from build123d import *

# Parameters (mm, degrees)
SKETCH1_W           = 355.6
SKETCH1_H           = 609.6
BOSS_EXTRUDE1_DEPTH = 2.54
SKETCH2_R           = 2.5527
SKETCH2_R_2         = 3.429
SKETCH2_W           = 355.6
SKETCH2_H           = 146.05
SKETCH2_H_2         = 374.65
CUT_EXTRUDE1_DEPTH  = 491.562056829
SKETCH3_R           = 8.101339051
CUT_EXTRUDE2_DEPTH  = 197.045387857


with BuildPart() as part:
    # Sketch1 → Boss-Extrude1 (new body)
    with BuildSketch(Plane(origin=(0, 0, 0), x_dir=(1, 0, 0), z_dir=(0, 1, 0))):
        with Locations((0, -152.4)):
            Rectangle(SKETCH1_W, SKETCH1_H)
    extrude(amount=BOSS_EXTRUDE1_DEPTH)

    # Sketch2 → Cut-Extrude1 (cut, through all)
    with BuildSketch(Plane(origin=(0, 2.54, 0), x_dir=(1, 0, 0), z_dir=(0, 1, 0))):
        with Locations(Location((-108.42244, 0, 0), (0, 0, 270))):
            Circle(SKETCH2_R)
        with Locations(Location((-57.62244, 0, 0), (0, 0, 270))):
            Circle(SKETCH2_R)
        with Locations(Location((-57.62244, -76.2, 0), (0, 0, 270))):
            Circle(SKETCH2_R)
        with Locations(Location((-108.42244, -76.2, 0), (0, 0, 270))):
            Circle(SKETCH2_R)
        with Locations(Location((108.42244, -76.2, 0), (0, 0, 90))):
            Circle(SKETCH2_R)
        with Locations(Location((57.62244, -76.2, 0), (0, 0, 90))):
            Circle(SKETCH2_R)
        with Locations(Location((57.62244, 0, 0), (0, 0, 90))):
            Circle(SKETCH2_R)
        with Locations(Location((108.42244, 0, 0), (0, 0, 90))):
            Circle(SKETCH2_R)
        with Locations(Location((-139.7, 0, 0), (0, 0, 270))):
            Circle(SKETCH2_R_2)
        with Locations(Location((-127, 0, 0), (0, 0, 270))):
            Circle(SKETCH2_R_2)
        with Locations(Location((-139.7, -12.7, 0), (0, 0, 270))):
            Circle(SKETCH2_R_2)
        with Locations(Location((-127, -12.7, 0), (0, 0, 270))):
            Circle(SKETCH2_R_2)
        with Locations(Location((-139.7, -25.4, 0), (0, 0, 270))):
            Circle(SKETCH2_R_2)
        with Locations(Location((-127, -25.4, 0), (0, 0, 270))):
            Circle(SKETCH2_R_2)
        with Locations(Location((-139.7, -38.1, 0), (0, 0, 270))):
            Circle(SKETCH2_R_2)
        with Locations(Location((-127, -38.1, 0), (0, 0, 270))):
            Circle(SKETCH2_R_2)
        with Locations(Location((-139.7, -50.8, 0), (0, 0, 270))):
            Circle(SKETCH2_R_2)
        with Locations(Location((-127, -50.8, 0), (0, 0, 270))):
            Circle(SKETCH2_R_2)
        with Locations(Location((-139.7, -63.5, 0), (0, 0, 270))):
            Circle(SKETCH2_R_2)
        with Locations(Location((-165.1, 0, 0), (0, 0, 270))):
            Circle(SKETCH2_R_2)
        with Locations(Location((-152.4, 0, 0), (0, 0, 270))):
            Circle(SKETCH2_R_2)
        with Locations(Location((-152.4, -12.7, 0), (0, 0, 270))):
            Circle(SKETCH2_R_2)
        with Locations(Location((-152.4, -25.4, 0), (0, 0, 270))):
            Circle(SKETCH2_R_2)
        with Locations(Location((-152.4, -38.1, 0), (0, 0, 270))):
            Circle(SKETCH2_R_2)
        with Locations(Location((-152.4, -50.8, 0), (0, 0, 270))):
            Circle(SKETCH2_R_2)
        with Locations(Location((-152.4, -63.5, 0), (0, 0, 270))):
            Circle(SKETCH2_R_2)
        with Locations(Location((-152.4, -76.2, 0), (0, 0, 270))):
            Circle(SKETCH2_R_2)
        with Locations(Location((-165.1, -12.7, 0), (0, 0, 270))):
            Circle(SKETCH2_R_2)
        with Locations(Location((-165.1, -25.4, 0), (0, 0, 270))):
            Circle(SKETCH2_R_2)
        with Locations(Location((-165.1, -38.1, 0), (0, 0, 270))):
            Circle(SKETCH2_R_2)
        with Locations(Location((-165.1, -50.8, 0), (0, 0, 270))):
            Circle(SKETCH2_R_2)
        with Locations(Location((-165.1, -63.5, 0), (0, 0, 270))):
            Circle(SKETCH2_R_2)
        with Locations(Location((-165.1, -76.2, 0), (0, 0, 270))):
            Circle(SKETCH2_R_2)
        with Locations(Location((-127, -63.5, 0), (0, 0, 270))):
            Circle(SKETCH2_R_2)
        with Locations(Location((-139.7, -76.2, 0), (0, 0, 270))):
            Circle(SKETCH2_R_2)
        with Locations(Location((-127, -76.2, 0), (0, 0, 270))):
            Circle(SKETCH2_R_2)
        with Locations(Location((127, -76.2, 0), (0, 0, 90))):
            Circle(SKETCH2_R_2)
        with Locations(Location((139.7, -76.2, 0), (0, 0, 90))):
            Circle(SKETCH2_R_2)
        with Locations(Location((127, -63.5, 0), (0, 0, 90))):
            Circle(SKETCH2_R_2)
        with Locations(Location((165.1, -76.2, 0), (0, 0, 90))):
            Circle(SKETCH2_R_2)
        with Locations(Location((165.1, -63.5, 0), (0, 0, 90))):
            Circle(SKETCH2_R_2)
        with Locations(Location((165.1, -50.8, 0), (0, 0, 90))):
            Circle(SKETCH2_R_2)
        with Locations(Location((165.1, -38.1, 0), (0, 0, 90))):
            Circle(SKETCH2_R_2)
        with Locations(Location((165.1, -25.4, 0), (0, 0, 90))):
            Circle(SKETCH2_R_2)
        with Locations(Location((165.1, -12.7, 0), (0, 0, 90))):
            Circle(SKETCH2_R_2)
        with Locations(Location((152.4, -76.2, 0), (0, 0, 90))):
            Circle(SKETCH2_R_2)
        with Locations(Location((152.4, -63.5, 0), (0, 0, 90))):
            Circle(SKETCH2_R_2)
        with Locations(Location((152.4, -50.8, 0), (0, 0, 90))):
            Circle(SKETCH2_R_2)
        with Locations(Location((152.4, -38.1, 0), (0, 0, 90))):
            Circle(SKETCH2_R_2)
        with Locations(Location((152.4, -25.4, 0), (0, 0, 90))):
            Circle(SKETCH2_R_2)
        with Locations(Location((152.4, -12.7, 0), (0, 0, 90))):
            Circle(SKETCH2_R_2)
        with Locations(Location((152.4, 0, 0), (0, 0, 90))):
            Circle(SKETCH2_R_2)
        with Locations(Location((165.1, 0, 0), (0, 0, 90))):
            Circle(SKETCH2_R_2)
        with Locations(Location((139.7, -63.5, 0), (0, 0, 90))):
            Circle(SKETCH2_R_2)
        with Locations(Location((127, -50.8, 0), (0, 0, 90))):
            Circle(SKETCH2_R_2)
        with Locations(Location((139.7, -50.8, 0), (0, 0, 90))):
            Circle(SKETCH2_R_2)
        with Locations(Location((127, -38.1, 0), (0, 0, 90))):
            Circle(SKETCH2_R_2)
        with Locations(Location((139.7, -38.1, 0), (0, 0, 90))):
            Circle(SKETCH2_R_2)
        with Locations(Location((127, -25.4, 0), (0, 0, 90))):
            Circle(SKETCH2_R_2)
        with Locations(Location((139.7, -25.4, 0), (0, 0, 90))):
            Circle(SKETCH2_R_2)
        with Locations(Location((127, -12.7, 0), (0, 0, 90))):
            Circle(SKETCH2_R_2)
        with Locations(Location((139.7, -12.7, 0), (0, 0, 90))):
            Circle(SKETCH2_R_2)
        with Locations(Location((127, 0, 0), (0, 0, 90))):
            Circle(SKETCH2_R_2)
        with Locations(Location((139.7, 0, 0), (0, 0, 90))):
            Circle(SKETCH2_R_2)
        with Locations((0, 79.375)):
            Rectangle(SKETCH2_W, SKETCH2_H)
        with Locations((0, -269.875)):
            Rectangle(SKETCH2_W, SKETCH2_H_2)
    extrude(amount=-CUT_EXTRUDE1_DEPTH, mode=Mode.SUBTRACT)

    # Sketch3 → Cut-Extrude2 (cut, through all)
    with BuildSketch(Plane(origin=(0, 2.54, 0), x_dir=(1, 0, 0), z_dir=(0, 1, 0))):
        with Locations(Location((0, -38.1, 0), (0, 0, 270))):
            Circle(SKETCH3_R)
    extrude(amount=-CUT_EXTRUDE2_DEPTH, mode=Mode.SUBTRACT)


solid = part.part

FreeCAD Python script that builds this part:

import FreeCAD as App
import Part
import Sketcher

V = App.Vector
Q = App.Units.Quantity

doc = App.newDocument("Part")
body = doc.addObject("PartDesign::Body", "Body")

sketch1 = body.newObject("Sketcher::SketchObject", "Sketch")
sketch1.AttachmentSupport = (doc.getObject("XZ_Plane"), [""])
sketch1.MapMode = "FlatFace"
sketch1.addGeometry([
    Part.LineSegment(V(-178, -152, 0), V(-178, 457, 0)),
    Part.LineSegment(V(-178, 457, 0), V(178, 457, 0)),
    Part.LineSegment(V(178, 457, 0), V(178, -152, 0)),
    Part.LineSegment(V(178, -152, 0), V(-178, -152, 0)),
], False)
sketch1.addConstraint([
    Sketcher.Constraint("Coincident", 0, 2, 1, 1),
    Sketcher.Constraint("Coincident", 1, 2, 2, 1),
    Sketcher.Constraint("Coincident", 2, 2, 3, 1),
    Sketcher.Constraint("Coincident", 3, 2, 0, 1),
    Sketcher.Constraint("Vertical", 0),
    Sketcher.Constraint("Horizontal", 1),
    Sketcher.Constraint("Vertical", 2),
    Sketcher.Constraint("Horizontal", 3),
    Sketcher.Constraint("DistanceX", 1, 1, 1, 2, Q("14 in")),
    Sketcher.Constraint("DistanceY", 0, 1, 0, 2, Q("24 in")),
    Sketcher.Constraint("DistanceX", 0, 2, -1, 1, Q("7 in")),
    Sketcher.Constraint("DistanceY", -1, 1, 0, 2, Q("18 in")),
])
pad1 = body.newObject("PartDesign::Pad", "Pad")
pad1.Profile = sketch1
pad1.Length = Q("0.1 in")
pad1.Reversed = True

sketch2 = body.newObject("Sketcher::SketchObject", "Sketch001")
sketch2.AttachmentSupport = (doc.getObject("XZ_Plane"), [""])
sketch2.MapMode = "FlatFace"
sketch2.AttachmentOffset = App.Placement(V(0, 0, -0.1 * 25.4), App.Rotation())
sketch2.addGeometry([
    Part.Circle(V(-108.4, 0, 0), V(0, 0, 1), 2.6),
    Part.Circle(V(-57.6, 0, 0), V(0, 0, 1), 2.6),
    Part.Circle(V(-57.6, 76.2, 0), V(0, 0, 1), 2.6),
    Part.Circle(V(-108.4, 76.2, 0), V(0, 0, 1), 2.6),
    Part.Circle(V(108.4, 76.2, 0), V(0, 0, 1), 2.6),
    Part.Circle(V(57.6, 76.2, 0), V(0, 0, 1), 2.6),
    Part.Circle(V(57.6, 0, 0), V(0, 0, 1), 2.6),
    Part.Circle(V(108.4, 0, 0), V(0, 0, 1), 2.6),
    Part.Circle(V(-139.7, 0, 0), V(0, 0, 1), 3.4),
    Part.Circle(V(-127, 0, 0), V(0, 0, 1), 3.4),
    Part.Circle(V(-139.7, 12.7, 0), V(0, 0, 1), 3.4),
    Part.Circle(V(-127, 12.7, 0), V(0, 0, 1), 3.4),
    Part.Circle(V(-139.7, 25.4, 0), V(0, 0, 1), 3.4),
    Part.Circle(V(-127, 25.4, 0), V(0, 0, 1), 3.4),
    Part.Circle(V(-139.7, 38.1, 0), V(0, 0, 1), 3.4),
    Part.Circle(V(-127, 38.1, 0), V(0, 0, 1), 3.4),
    Part.Circle(V(-139.7, 50.8, 0), V(0, 0, 1), 3.4),
    Part.Circle(V(-127, 50.8, 0), V(0, 0, 1), 3.4),
    Part.Circle(V(-139.7, 63.5, 0), V(0, 0, 1), 3.4),
    Part.Circle(V(-165.1, 0, 0), V(0, 0, 1), 3.4),
    Part.Circle(V(-152.4, 0, 0), V(0, 0, 1), 3.4),
    Part.Circle(V(-152.4, 12.7, 0), V(0, 0, 1), 3.4),
    Part.Circle(V(-152.4, 25.4, 0), V(0, 0, 1), 3.4),
    Part.Circle(V(-152.4, 38.1, 0), V(0, 0, 1), 3.4),
    Part.Circle(V(-152.4, 50.8, 0), V(0, 0, 1), 3.4),
    Part.Circle(V(-152.4, 63.5, 0), V(0, 0, 1), 3.4),
    Part.Circle(V(-152.4, 76.2, 0), V(0, 0, 1), 3.4),
    Part.Circle(V(-165.1, 12.7, 0), V(0, 0, 1), 3.4),
    Part.Circle(V(-165.1, 25.4, 0), V(0, 0, 1), 3.4),
    Part.Circle(V(-165.1, 38.1, 0), V(0, 0, 1), 3.4),
    Part.Circle(V(-165.1, 50.8, 0), V(0, 0, 1), 3.4),
    Part.Circle(V(-165.1, 63.5, 0), V(0, 0, 1), 3.4),
    Part.Circle(V(-165.1, 76.2, 0), V(0, 0, 1), 3.4),
    Part.Circle(V(-127, 63.5, 0), V(0, 0, 1), 3.4),
    Part.Circle(V(-139.7, 76.2, 0), V(0, 0, 1), 3.4),
    Part.Circle(V(-127, 76.2, 0), V(0, 0, 1), 3.4),
    Part.Circle(V(127, 76.2, 0), V(0, 0, 1), 3.4),
    Part.Circle(V(139.7, 76.2, 0), V(0, 0, 1), 3.4),
    Part.Circle(V(127, 63.5, 0), V(0, 0, 1), 3.4),
    Part.Circle(V(165.1, 76.2, 0), V(0, 0, 1), 3.4),
    Part.Circle(V(165.1, 63.5, 0), V(0, 0, 1), 3.4),
    Part.Circle(V(165.1, 50.8, 0), V(0, 0, 1), 3.4),
    Part.Circle(V(165.1, 38.1, 0), V(0, 0, 1), 3.4),
    Part.Circle(V(165.1, 25.4, 0), V(0, 0, 1), 3.4),
    Part.Circle(V(165.1, 12.7, 0), V(0, 0, 1), 3.4),
    Part.Circle(V(152.4, 76.2, 0), V(0, 0, 1), 3.4),
    Part.Circle(V(152.4, 63.5, 0), V(0, 0, 1), 3.4),
    Part.Circle(V(152.4, 50.8, 0), V(0, 0, 1), 3.4),
    Part.Circle(V(152.4, 38.1, 0), V(0, 0, 1), 3.4),
    Part.Circle(V(152.4, 25.4, 0), V(0, 0, 1), 3.4),
    Part.Circle(V(152.4, 12.7, 0), V(0, 0, 1), 3.4),
    Part.Circle(V(152.4, 0, 0), V(0, 0, 1), 3.4),
    Part.Circle(V(165.1, 0, 0), V(0, 0, 1), 3.4),
    Part.Circle(V(139.7, 63.5, 0), V(0, 0, 1), 3.4),
    Part.Circle(V(127, 50.8, 0), V(0, 0, 1), 3.4),
    Part.Circle(V(139.7, 50.8, 0), V(0, 0, 1), 3.4),
    Part.Circle(V(127, 38.1, 0), V(0, 0, 1), 3.4),
    Part.Circle(V(139.7, 38.1, 0), V(0, 0, 1), 3.4),
    Part.Circle(V(127, 25.4, 0), V(0, 0, 1), 3.4),
    Part.Circle(V(139.7, 25.4, 0), V(0, 0, 1), 3.4),
    Part.Circle(V(127, 12.7, 0), V(0, 0, 1), 3.4),
    Part.Circle(V(139.7, 12.7, 0), V(0, 0, 1), 3.4),
    Part.Circle(V(127, 0, 0), V(0, 0, 1), 3.4),
    Part.Circle(V(139.7, 0, 0), V(0, 0, 1), 3.4),
    Part.LineSegment(V(-177.8, -152.4, 0), V(-177.8, -6.3, 0)),
    Part.LineSegment(V(-177.8, -6.3, 0), V(177.8, -6.3, 0)),
    Part.LineSegment(V(177.8, -6.3, 0), V(177.8, -152.4, 0)),
    Part.LineSegment(V(177.8, -152.4, 0), V(-177.8, -152.4, 0)),
    Part.LineSegment(V(-177.8, 82.5, 0), V(-177.8, 457.2, 0)),
    Part.LineSegment(V(-177.8, 457.2, 0), V(177.8, 457.2, 0)),
    Part.LineSegment(V(177.8, 457.2, 0), V(177.8, 82.5, 0)),
    Part.LineSegment(V(177.8, 82.5, 0), V(-177.8, 82.5, 0)),
], False)
sketch2.addConstraint([
    Sketcher.Constraint("Coincident", 64, 2, 65, 1),
    Sketcher.Constraint("Coincident", 65, 2, 66, 1),
    Sketcher.Constraint("Coincident", 66, 2, 67, 1),
    Sketcher.Constraint("Coincident", 67, 2, 64, 1),
    Sketcher.Constraint("Coincident", 68, 2, 69, 1),
    Sketcher.Constraint("Coincident", 69, 2, 70, 1),
    Sketcher.Constraint("Coincident", 70, 2, 71, 1),
    Sketcher.Constraint("Coincident", 71, 2, 68, 1),
    Sketcher.Constraint("Vertical", 64),
    Sketcher.Constraint("Horizontal", 65),
    Sketcher.Constraint("Vertical", 66),
    Sketcher.Constraint("Horizontal", 67),
    Sketcher.Constraint("Vertical", 68),
    Sketcher.Constraint("Horizontal", 69),
    Sketcher.Constraint("Vertical", 70),
    Sketcher.Constraint("Horizontal", 71),
    Sketcher.Constraint("Equal", 0, 1),
    Sketcher.Constraint("Equal", 1, 2),
    Sketcher.Constraint("Equal", 2, 3),
    Sketcher.Constraint("Equal", 3, 4),
    Sketcher.Constraint("Equal", 4, 5),
    Sketcher.Constraint("Equal", 5, 6),
    Sketcher.Constraint("Equal", 6, 7),
    Sketcher.Constraint("Equal", 8, 9),
    Sketcher.Constraint("Equal", 9, 10),
    Sketcher.Constraint("Equal", 10, 11),
    Sketcher.Constraint("Equal", 11, 12),
    Sketcher.Constraint("Equal", 12, 13),
    Sketcher.Constraint("Equal", 13, 14),
    Sketcher.Constraint("Equal", 14, 15),
    Sketcher.Constraint("Equal", 15, 16),
    Sketcher.Constraint("Equal", 16, 17),
    Sketcher.Constraint("Equal", 17, 18),
    Sketcher.Constraint("Equal", 18, 19),
    Sketcher.Constraint("Equal", 19, 20),
    Sketcher.Constraint("Equal", 20, 21),
    Sketcher.Constraint("Equal", 21, 22),
    Sketcher.Constraint("Equal", 22, 23),
    Sketcher.Constraint("Equal", 23, 24),
    Sketcher.Constraint("Equal", 24, 25),
    Sketcher.Constraint("Equal", 25, 26),
    Sketcher.Constraint("Equal", 26, 27),
    Sketcher.Constraint("Equal", 27, 28),
    Sketcher.Constraint("Equal", 28, 29),
    Sketcher.Constraint("Equal", 29, 30),
    Sketcher.Constraint("Equal", 30, 31),
    Sketcher.Constraint("Equal", 31, 32),
    Sketcher.Constraint("Equal", 32, 33),
    Sketcher.Constraint("Equal", 33, 34),
    Sketcher.Constraint("Equal", 34, 35),
    Sketcher.Constraint("Equal", 35, 36),
    Sketcher.Constraint("Equal", 36, 37),
    Sketcher.Constraint("Equal", 37, 38),
    Sketcher.Constraint("Equal", 38, 39),
    Sketcher.Constraint("Equal", 39, 40),
    Sketcher.Constraint("Equal", 40, 41),
    Sketcher.Constraint("Equal", 41, 42),
    Sketcher.Constraint("Equal", 42, 43),
    Sketcher.Constraint("Equal", 43, 44),
    Sketcher.Constraint("Equal", 44, 45),
    Sketcher.Constraint("Equal", 45, 46),
    Sketcher.Constraint("Equal", 46, 47),
    Sketcher.Constraint("Equal", 47, 48),
    Sketcher.Constraint("Equal", 48, 49),
    Sketcher.Constraint("Equal", 49, 50),
    Sketcher.Constraint("Equal", 50, 51),
    Sketcher.Constraint("Equal", 51, 52),
    Sketcher.Constraint("Equal", 52, 53),
    Sketcher.Constraint("Equal", 53, 54),
    Sketcher.Constraint("Equal", 54, 55),
    Sketcher.Constraint("Equal", 55, 56),
    Sketcher.Constraint("Equal", 56, 57),
    Sketcher.Constraint("Equal", 57, 58),
    Sketcher.Constraint("Equal", 58, 59),
    Sketcher.Constraint("Equal", 59, 60),
    Sketcher.Constraint("Equal", 60, 61),
    Sketcher.Constraint("Equal", 61, 62),
    Sketcher.Constraint("Equal", 62, 63),
    Sketcher.Constraint("Symmetric", 1, 3, 6, 3, -1, 1),
    Sketcher.Constraint("Symmetric", 0, 3, 7, 3, -1, 1),
    Sketcher.Constraint("Symmetric", 20, 3, 51, 3, -1, 1),
    Sketcher.Constraint("Symmetric", 19, 3, 52, 3, -1, 1),
    Sketcher.Constraint("Symmetric", 9, 3, 62, 3, -1, 1),
    Sketcher.Constraint("Symmetric", 8, 3, 63, 3, -1, 1),
    Sketcher.Constraint("Symmetric", 3, 3, 4, 3, -2),
    Sketcher.Constraint("Symmetric", 2, 3, 5, 3, -2),
    Sketcher.Constraint("Symmetric", 35, 3, 36, 3, -2),
    Sketcher.Constraint("Symmetric", 34, 3, 37, 3, -2),
    Sketcher.Constraint("Symmetric", 33, 3, 38, 3, -2),
    Sketcher.Constraint("Symmetric", 32, 3, 39, 3, -2),
    Sketcher.Constraint("Symmetric", 31, 3, 40, 3, -2),
    Sketcher.Constraint("Symmetric", 30, 3, 41, 3, -2),
    Sketcher.Constraint("Symmetric", 29, 3, 42, 3, -2),
    Sketcher.Constraint("Symmetric", 28, 3, 43, 3, -2),
    Sketcher.Constraint("Symmetric", 27, 3, 44, 3, -2),
    Sketcher.Constraint("Symmetric", 26, 3, 45, 3, -2),
    Sketcher.Constraint("Symmetric", 25, 3, 46, 3, -2),
    Sketcher.Constraint("Symmetric", 24, 3, 47, 3, -2),
    Sketcher.Constraint("Symmetric", 23, 3, 48, 3, -2),
    Sketcher.Constraint("Symmetric", 22, 3, 49, 3, -2),
    Sketcher.Constraint("Symmetric", 21, 3, 50, 3, -2),
    Sketcher.Constraint("Symmetric", 18, 3, 53, 3, -2),
    Sketcher.Constraint("Symmetric", 17, 3, 54, 3, -2),
    Sketcher.Constraint("Symmetric", 16, 3, 55, 3, -2),
    Sketcher.Constraint("Symmetric", 15, 3, 56, 3, -2),
    Sketcher.Constraint("Symmetric", 14, 3, 57, 3, -2),
    Sketcher.Constraint("Symmetric", 13, 3, 58, 3, -2),
    Sketcher.Constraint("Symmetric", 12, 3, 59, 3, -2),
    Sketcher.Constraint("Symmetric", 11, 3, 60, 3, -2),
    Sketcher.Constraint("Symmetric", 10, 3, 61, 3, -2),
    Sketcher.Constraint("PointOnObject", 0, 3, -1),
    Sketcher.Constraint("PointOnObject", 1, 3, -1),
    Sketcher.Constraint("PointOnObject", 8, 3, -1),
    Sketcher.Constraint("PointOnObject", 9, 3, -1),
    Sketcher.Constraint("PointOnObject", 19, 3, -1),
    Sketcher.Constraint("PointOnObject", 20, 3, -1),
    Sketcher.Constraint("Horizontal", 2, 3, 3, 3),
    Sketcher.Constraint("Horizontal", 10, 3, 11, 3),
    Sketcher.Constraint("Horizontal", 12, 3, 13, 3),
    Sketcher.Constraint("Horizontal", 14, 3, 15, 3),
    Sketcher.Constraint("Horizontal", 16, 3, 17, 3),
    Sketcher.Constraint("Horizontal", 11, 3, 21, 3),
    Sketcher.Constraint("Horizontal", 13, 3, 22, 3),
    Sketcher.Constraint("Horizontal", 15, 3, 23, 3),
    Sketcher.Constraint("Horizontal", 17, 3, 24, 3),
    Sketcher.Constraint("Horizontal", 18, 3, 25, 3),
    Sketcher.Constraint("Horizontal", 5, 3, 26, 3),
    Sketcher.Constraint("Horizontal", 21, 3, 27, 3),
    Sketcher.Constraint("Horizontal", 22, 3, 28, 3),
    Sketcher.Constraint("Horizontal", 23, 3, 29, 3),
    Sketcher.Constraint("Horizontal", 24, 3, 30, 3),
    Sketcher.Constraint("Horizontal", 25, 3, 31, 3),
    Sketcher.Constraint("Horizontal", 26, 3, 32, 3),
    Sketcher.Constraint("Horizontal", 31, 3, 33, 3),
    Sketcher.Constraint("Horizontal", 32, 3, 34, 3),
    Sketcher.Constraint("Horizontal", 34, 3, 35, 3),
    Sketcher.Constraint("Vertical", 1, 3, 2, 3),
    Sketcher.Constraint("Vertical", 0, 3, 3, 3),
    Sketcher.Constraint("Vertical", 8, 3, 10, 3),
    Sketcher.Constraint("Vertical", 9, 3, 11, 3),
    Sketcher.Constraint("Vertical", 10, 3, 12, 3),
    Sketcher.Constraint("Vertical", 11, 3, 13, 3),
    Sketcher.Constraint("Vertical", 12, 3, 14, 3),
    Sketcher.Constraint("Vertical", 13, 3, 15, 3),
    Sketcher.Constraint("Vertical", 14, 3, 16, 3),
    Sketcher.Constraint("Vertical", 15, 3, 17, 3),
    Sketcher.Constraint("Vertical", 16, 3, 18, 3),
    Sketcher.Constraint("Vertical", 20, 3, 21, 3),
    Sketcher.Constraint("Vertical", 21, 3, 22, 3),
    Sketcher.Constraint("Vertical", 22, 3, 23, 3),
    Sketcher.Constraint("Vertical", 23, 3, 24, 3),
    Sketcher.Constraint("Vertical", 24, 3, 25, 3),
    Sketcher.Constraint("Vertical", 25, 3, 26, 3),
    Sketcher.Constraint("Vertical", 19, 3, 27, 3),
    Sketcher.Constraint("Vertical", 27, 3, 28, 3),
    Sketcher.Constraint("Vertical", 28, 3, 29, 3),
    Sketcher.Constraint("Vertical", 29, 3, 30, 3),
    Sketcher.Constraint("Vertical", 30, 3, 31, 3),
    Sketcher.Constraint("Vertical", 31, 3, 32, 3),
    Sketcher.Constraint("Vertical", 17, 3, 33, 3),
    Sketcher.Constraint("Vertical", 18, 3, 34, 3),
    Sketcher.Constraint("Vertical", 33, 3, 35, 3),
    Sketcher.Constraint("Vertical", 67, 2, 68, 2),
    Sketcher.Constraint("Vertical", 66, 2, 69, 2),
    Sketcher.Constraint("Diameter", 8, Q("0.27 in")),
    Sketcher.Constraint("DistanceX", 65, 1, 65, 2, Q("14 in")),
    Sketcher.Constraint("Diameter", 0, Q("0.201 in")),
    Sketcher.Constraint("DistanceY", -1, 1, 2, 3, Q("3 in")),
    Sketcher.Constraint("DistanceX", 9, 3, -1, 1, Q("5 in")),
    Sketcher.Constraint("DistanceY", -1, 1, 12, 3, Q("1 in")),
    Sketcher.Constraint("DistanceY", -1, 1, 16, 3, Q("2 in")),
    Sketcher.Constraint("DistanceX", 20, 3, -1, 1, Q("6 in")),
    Sketcher.Constraint("DistanceX", 64, 2, -1, 1, Q("7 in")),
    Sketcher.Constraint("DistanceY", 66, 2, -1, 1, Q("6 in")),
    Sketcher.Constraint("DistanceY", -1, 1, 68, 2, Q("18 in")),
    Sketcher.Constraint("DistanceY", 64, 1, 64, 2, Q("5.75 in")),
    Sketcher.Constraint("DistanceY", 68, 1, 68, 2, Q("14.75 in")),
    Sketcher.Constraint("DistanceX", 8, 3, -1, 1, Q("5.5 in")),
    Sketcher.Constraint("DistanceY", -1, 1, 10, 3, Q("0.5 in")),
    Sketcher.Constraint("DistanceY", -1, 1, 14, 3, Q("1.5 in")),
    Sketcher.Constraint("DistanceY", -1, 1, 18, 3, Q("2.5 in")),
    Sketcher.Constraint("DistanceX", 19, 3, -1, 1, Q("6.5 in")),
    Sketcher.Constraint("DistanceX", 0, 3, -1, 1, Q("4.2686 in")),
    Sketcher.Constraint("DistanceX", 1, 3, -1, 1, Q("2.2686 in")),
])
pocket1 = body.newObject("PartDesign::Pocket", "Pocket")
pocket1.Profile = sketch2
pocket1.Type = "ThroughAll"
pocket1.Reversed = True

sketch3 = body.newObject("Sketcher::SketchObject", "Sketch002")
sketch3.AttachmentSupport = (doc.getObject("XZ_Plane"), [""])
sketch3.MapMode = "FlatFace"
sketch3.AttachmentOffset = App.Placement(V(0, 0, -0.1 * 25.4), App.Rotation())
sketch3.addGeometry(Part.Circle(V(0, 38, 0), V(0, 0, 1), 8), False)
sketch3.addConstraint([
    Sketcher.Constraint("PointOnObject", 0, 3, -2),
    Sketcher.Constraint("DistanceY", -1, 1, 0, 3, Q("1.5 in")),
    Sketcher.Constraint("Diameter", 0, Q("16.202678 mm")),
])
pocket2 = body.newObject("PartDesign::Pocket", "Pocket001")
pocket2.Profile = sketch3
pocket2.Type = "ThroughAll"
pocket2.Reversed = True

doc.recompute()
